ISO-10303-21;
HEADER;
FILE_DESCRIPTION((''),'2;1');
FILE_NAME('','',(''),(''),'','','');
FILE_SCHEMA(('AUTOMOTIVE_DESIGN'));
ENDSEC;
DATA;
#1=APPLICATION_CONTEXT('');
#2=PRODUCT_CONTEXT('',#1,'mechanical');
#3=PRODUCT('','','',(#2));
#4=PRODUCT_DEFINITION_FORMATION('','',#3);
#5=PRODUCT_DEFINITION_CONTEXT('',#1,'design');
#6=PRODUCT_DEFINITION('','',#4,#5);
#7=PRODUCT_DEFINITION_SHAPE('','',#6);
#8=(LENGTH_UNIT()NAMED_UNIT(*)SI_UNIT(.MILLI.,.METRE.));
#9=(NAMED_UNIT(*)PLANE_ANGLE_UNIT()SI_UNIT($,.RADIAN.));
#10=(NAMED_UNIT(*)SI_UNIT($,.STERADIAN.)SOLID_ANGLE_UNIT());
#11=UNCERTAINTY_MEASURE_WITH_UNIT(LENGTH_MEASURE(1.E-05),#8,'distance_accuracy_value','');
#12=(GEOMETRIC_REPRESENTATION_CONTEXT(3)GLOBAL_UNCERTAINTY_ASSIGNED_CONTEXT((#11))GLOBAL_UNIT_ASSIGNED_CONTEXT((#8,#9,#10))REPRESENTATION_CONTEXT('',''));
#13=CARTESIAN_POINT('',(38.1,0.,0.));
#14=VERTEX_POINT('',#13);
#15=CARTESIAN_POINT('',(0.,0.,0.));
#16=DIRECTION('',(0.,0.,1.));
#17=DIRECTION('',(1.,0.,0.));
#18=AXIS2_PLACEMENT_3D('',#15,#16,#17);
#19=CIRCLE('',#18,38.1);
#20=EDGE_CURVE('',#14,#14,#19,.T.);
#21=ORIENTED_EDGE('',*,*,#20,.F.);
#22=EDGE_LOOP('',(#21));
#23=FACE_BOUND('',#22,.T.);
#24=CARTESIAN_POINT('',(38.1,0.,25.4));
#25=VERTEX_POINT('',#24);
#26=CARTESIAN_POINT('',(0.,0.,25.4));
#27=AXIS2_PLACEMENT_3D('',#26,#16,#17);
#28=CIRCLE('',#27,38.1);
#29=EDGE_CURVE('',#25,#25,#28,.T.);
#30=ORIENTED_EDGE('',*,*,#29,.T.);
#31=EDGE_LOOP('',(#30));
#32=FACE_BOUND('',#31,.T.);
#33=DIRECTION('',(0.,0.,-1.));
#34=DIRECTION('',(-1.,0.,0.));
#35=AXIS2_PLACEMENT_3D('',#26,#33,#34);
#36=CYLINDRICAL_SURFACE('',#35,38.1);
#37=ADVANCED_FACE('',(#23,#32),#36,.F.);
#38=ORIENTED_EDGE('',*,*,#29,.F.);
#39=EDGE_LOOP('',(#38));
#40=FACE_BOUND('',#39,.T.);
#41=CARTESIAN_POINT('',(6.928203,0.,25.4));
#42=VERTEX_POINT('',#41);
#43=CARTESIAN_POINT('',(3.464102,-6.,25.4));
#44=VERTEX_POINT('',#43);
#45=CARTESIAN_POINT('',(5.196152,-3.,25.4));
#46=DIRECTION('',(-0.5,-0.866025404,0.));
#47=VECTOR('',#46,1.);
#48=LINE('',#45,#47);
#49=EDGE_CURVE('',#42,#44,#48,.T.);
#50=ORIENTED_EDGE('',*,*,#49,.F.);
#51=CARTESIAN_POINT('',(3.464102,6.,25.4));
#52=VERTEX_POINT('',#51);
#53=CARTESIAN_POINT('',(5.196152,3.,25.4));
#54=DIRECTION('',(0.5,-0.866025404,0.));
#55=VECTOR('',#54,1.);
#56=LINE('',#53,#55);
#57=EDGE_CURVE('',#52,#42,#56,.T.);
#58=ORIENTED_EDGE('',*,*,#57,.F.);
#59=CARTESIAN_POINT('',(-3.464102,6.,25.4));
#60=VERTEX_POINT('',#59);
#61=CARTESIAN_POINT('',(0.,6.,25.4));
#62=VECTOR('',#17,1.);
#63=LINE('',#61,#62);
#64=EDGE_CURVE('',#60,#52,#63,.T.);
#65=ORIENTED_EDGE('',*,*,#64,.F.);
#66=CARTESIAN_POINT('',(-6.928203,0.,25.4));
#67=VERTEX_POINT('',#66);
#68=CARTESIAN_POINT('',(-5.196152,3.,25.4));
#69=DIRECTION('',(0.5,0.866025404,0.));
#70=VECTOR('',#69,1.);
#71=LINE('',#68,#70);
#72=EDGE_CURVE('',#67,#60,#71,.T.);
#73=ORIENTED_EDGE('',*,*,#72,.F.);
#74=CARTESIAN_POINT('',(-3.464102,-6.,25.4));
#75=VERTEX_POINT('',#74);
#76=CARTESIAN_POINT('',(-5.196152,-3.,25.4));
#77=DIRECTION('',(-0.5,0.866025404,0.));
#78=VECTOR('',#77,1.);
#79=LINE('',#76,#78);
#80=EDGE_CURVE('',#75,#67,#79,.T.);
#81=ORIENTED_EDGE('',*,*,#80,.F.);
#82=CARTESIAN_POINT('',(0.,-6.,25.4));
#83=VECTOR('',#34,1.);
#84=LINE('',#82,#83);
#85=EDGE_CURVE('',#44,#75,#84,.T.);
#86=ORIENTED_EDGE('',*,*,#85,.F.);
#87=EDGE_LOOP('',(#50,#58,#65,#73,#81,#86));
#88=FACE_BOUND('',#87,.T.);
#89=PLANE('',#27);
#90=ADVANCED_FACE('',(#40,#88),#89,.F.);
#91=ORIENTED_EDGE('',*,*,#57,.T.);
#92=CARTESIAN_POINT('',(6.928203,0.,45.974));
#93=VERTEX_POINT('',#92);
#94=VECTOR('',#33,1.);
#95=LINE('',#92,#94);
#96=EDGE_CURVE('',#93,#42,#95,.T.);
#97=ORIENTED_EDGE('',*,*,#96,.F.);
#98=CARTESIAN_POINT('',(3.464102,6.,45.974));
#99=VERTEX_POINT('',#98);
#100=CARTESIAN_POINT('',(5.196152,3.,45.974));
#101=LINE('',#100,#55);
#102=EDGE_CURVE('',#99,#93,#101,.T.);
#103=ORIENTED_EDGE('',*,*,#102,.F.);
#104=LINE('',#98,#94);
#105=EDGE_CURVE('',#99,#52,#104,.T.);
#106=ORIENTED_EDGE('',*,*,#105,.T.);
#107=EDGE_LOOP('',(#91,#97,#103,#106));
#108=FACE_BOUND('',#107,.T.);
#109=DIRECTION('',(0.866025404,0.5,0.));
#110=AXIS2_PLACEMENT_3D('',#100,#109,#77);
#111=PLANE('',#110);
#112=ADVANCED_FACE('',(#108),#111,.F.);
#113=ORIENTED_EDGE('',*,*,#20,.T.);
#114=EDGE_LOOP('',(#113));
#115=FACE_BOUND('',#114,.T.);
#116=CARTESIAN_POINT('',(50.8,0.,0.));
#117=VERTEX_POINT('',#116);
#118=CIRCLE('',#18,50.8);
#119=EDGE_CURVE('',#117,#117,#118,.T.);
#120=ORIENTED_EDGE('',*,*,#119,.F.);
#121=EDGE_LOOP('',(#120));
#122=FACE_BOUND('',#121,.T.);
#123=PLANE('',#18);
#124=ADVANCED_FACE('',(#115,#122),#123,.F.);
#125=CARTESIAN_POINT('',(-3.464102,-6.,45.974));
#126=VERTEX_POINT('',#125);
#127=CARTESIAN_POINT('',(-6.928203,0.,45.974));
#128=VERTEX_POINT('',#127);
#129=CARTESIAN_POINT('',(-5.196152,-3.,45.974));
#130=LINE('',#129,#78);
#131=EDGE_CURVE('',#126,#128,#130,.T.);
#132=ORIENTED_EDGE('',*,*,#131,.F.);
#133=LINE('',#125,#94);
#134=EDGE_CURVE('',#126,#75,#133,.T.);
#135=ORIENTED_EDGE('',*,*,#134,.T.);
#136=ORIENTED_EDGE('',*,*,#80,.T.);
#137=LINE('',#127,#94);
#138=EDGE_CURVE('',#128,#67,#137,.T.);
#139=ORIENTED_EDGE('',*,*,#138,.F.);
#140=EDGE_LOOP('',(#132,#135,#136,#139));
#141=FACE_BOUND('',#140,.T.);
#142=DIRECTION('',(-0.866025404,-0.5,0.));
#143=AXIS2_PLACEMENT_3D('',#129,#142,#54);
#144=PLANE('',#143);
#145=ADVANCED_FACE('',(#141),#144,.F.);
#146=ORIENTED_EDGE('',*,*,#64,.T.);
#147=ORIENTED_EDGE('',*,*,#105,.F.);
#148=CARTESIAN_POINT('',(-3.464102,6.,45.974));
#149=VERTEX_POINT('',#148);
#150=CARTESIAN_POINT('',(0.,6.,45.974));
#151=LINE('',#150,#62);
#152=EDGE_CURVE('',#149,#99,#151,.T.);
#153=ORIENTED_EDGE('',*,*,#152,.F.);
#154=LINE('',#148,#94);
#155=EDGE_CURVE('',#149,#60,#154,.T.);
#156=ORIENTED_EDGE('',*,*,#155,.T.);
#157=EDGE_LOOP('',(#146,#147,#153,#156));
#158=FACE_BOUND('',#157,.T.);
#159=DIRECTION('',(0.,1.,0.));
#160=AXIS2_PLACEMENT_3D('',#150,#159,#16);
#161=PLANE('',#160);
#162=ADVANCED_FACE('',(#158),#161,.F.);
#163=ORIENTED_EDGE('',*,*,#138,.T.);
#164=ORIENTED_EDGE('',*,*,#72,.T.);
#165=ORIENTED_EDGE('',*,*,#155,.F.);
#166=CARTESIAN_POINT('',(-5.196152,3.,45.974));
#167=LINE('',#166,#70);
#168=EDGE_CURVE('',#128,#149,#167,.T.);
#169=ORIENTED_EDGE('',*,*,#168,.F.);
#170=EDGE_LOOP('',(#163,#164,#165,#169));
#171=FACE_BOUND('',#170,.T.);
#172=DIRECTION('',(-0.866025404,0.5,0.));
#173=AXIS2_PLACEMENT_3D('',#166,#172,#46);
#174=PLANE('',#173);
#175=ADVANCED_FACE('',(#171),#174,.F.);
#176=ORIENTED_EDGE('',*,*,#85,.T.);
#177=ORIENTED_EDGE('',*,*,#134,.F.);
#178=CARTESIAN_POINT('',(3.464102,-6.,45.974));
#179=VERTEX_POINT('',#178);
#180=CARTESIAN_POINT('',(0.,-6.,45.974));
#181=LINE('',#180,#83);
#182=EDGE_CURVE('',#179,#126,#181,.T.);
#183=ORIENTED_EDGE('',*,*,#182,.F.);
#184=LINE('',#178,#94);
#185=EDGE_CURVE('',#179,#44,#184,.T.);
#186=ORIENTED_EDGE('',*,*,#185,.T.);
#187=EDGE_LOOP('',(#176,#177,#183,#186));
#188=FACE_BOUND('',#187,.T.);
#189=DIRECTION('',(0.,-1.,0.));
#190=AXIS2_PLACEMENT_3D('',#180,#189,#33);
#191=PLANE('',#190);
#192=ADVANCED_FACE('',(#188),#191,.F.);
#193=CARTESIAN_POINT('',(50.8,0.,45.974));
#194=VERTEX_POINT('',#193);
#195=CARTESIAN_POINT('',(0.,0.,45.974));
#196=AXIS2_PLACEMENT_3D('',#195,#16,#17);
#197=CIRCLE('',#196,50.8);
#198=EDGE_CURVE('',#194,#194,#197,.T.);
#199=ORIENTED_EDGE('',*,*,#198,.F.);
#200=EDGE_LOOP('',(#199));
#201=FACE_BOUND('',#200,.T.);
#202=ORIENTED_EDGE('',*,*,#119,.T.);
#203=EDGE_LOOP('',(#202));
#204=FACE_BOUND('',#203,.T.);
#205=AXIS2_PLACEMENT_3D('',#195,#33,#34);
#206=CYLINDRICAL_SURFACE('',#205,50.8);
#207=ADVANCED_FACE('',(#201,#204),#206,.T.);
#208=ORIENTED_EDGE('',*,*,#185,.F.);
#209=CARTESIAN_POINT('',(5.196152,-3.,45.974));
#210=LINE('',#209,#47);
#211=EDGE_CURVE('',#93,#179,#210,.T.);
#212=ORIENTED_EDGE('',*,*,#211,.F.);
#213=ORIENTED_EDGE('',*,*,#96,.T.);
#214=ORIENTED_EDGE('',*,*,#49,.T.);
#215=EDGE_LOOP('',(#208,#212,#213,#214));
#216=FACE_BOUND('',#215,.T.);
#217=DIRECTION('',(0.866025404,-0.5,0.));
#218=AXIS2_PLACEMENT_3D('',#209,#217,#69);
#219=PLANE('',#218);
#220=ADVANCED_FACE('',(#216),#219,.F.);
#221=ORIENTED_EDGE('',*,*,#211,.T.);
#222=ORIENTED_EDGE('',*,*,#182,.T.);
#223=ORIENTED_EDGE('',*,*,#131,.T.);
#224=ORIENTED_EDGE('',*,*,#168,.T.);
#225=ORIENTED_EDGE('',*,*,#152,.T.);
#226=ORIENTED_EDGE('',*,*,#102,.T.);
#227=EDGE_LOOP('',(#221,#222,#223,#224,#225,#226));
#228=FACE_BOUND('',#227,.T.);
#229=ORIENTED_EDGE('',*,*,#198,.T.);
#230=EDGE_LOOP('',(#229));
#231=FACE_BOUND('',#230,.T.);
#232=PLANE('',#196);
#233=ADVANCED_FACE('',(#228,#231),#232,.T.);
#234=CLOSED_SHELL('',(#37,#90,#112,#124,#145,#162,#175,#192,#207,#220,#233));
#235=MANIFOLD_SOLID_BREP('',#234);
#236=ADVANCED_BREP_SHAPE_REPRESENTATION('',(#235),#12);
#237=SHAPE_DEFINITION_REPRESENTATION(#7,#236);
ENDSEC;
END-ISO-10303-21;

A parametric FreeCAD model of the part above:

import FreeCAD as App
import Part
import Sketcher

V = App.Vector
Q = App.Units.Quantity


def add_polygon(sketch, points):
    """Adds a closed chain of lines whose ends are joined by coincident constraints."""
    first, n = sketch.GeometryCount, len(points)
    for a, b in zip(points, points[1:] + points[:1]):
        sketch.addGeometry(Part.LineSegment(App.Vector(*a, 0), App.Vector(*b, 0)), False)
    for i in range(n):
        sketch.addConstraint(Sketcher.Constraint("Coincident", first + i, 2, first + (i + 1) % n, 1))

doc = App.newDocument("Part")
body = doc.addObject("PartDesign::Body", "Body")

# Sketch on XY plane
sketch1 = doc.addObject("Sketcher::SketchObject", "Sketch")
body.addObject(sketch1)
sketch1.AttachmentSupport = (doc.XY_Plane, [""])
sketch1.MapMode = "FlatFace"
sketch1.addGeometry(Part.Circle(V(0, 0, 0), V(0, 0, 1), 50.8), False)  # 0
add_polygon(sketch1, [(3.464102, 6), (6.928203, 0), (3.464102, -6), (-3.464102, -6), (-6.928203, 0), (-3.464102, 6)])  # lines 1-6
sketch1.addConstraint(Sketcher.Constraint("Horizontal", 3))
sketch1.addConstraint(Sketcher.Constraint("Horizontal", 6))
sketch1.addConstraint(Sketcher.Constraint("Coincident", 0, 3, -1, 1))
sketch1.addConstraint(Sketcher.Constraint("Symmetric", 1, 2, 4, 2, -1, 1))
sketch1.addConstraint(Sketcher.Constraint("Symmetric", 2, 2, 5, 2, -1, 1))
sketch1.addConstraint(Sketcher.Constraint("PointOnObject", 1, 2, -1))
sketch1.addConstraint(Sketcher.Constraint("Parallel", 1, 4))
sketch1.addConstraint(Sketcher.Constraint("Vertical", 3, 2, 5, 2))
sketch1.addConstraint(Sketcher.Constraint("Diameter", 0, Q("4 in")))
sketch1.addConstraint(Sketcher.Constraint("Angle", 1, Q("-60 deg")))
sketch1.addConstraint(Sketcher.Constraint("DistanceX", -1, 1, 2, 2, 3.464102))
sketch1.addConstraint(Sketcher.Constraint("DistanceY", 2, 2, -1, 1, 6.0))
pad1 = doc.addObject("PartDesign::Pad", "Pad")
body.addObject(pad1)
pad1.Profile = sketch1
pad1.Length = Q("1.81 in")

# Sketch on XY plane
sketch2 = doc.addObject("Sketcher::SketchObject", "Sketch001")
body.addObject(sketch2)
sketch2.AttachmentSupport = (doc.XY_Plane, [""])
sketch2.MapMode = "FlatFace"
sketch2.addGeometry(Part.Circle(V(0, 0, 0), V(0, 0, 1), 38.1), False)
sketch2.addConstraint(Sketcher.Constraint("Coincident", 0, 3, -1, 1))
sketch2.addConstraint(Sketcher.Constraint("Diameter", 0, Q("3 in")))
pocket1 = doc.addObject("PartDesign::Pocket", "Pocket")
body.addObject(pocket1)
pocket1.Profile = sketch2
pocket1.Length = Q("1 in")
pocket1.Reversed = True

doc.recompute()
